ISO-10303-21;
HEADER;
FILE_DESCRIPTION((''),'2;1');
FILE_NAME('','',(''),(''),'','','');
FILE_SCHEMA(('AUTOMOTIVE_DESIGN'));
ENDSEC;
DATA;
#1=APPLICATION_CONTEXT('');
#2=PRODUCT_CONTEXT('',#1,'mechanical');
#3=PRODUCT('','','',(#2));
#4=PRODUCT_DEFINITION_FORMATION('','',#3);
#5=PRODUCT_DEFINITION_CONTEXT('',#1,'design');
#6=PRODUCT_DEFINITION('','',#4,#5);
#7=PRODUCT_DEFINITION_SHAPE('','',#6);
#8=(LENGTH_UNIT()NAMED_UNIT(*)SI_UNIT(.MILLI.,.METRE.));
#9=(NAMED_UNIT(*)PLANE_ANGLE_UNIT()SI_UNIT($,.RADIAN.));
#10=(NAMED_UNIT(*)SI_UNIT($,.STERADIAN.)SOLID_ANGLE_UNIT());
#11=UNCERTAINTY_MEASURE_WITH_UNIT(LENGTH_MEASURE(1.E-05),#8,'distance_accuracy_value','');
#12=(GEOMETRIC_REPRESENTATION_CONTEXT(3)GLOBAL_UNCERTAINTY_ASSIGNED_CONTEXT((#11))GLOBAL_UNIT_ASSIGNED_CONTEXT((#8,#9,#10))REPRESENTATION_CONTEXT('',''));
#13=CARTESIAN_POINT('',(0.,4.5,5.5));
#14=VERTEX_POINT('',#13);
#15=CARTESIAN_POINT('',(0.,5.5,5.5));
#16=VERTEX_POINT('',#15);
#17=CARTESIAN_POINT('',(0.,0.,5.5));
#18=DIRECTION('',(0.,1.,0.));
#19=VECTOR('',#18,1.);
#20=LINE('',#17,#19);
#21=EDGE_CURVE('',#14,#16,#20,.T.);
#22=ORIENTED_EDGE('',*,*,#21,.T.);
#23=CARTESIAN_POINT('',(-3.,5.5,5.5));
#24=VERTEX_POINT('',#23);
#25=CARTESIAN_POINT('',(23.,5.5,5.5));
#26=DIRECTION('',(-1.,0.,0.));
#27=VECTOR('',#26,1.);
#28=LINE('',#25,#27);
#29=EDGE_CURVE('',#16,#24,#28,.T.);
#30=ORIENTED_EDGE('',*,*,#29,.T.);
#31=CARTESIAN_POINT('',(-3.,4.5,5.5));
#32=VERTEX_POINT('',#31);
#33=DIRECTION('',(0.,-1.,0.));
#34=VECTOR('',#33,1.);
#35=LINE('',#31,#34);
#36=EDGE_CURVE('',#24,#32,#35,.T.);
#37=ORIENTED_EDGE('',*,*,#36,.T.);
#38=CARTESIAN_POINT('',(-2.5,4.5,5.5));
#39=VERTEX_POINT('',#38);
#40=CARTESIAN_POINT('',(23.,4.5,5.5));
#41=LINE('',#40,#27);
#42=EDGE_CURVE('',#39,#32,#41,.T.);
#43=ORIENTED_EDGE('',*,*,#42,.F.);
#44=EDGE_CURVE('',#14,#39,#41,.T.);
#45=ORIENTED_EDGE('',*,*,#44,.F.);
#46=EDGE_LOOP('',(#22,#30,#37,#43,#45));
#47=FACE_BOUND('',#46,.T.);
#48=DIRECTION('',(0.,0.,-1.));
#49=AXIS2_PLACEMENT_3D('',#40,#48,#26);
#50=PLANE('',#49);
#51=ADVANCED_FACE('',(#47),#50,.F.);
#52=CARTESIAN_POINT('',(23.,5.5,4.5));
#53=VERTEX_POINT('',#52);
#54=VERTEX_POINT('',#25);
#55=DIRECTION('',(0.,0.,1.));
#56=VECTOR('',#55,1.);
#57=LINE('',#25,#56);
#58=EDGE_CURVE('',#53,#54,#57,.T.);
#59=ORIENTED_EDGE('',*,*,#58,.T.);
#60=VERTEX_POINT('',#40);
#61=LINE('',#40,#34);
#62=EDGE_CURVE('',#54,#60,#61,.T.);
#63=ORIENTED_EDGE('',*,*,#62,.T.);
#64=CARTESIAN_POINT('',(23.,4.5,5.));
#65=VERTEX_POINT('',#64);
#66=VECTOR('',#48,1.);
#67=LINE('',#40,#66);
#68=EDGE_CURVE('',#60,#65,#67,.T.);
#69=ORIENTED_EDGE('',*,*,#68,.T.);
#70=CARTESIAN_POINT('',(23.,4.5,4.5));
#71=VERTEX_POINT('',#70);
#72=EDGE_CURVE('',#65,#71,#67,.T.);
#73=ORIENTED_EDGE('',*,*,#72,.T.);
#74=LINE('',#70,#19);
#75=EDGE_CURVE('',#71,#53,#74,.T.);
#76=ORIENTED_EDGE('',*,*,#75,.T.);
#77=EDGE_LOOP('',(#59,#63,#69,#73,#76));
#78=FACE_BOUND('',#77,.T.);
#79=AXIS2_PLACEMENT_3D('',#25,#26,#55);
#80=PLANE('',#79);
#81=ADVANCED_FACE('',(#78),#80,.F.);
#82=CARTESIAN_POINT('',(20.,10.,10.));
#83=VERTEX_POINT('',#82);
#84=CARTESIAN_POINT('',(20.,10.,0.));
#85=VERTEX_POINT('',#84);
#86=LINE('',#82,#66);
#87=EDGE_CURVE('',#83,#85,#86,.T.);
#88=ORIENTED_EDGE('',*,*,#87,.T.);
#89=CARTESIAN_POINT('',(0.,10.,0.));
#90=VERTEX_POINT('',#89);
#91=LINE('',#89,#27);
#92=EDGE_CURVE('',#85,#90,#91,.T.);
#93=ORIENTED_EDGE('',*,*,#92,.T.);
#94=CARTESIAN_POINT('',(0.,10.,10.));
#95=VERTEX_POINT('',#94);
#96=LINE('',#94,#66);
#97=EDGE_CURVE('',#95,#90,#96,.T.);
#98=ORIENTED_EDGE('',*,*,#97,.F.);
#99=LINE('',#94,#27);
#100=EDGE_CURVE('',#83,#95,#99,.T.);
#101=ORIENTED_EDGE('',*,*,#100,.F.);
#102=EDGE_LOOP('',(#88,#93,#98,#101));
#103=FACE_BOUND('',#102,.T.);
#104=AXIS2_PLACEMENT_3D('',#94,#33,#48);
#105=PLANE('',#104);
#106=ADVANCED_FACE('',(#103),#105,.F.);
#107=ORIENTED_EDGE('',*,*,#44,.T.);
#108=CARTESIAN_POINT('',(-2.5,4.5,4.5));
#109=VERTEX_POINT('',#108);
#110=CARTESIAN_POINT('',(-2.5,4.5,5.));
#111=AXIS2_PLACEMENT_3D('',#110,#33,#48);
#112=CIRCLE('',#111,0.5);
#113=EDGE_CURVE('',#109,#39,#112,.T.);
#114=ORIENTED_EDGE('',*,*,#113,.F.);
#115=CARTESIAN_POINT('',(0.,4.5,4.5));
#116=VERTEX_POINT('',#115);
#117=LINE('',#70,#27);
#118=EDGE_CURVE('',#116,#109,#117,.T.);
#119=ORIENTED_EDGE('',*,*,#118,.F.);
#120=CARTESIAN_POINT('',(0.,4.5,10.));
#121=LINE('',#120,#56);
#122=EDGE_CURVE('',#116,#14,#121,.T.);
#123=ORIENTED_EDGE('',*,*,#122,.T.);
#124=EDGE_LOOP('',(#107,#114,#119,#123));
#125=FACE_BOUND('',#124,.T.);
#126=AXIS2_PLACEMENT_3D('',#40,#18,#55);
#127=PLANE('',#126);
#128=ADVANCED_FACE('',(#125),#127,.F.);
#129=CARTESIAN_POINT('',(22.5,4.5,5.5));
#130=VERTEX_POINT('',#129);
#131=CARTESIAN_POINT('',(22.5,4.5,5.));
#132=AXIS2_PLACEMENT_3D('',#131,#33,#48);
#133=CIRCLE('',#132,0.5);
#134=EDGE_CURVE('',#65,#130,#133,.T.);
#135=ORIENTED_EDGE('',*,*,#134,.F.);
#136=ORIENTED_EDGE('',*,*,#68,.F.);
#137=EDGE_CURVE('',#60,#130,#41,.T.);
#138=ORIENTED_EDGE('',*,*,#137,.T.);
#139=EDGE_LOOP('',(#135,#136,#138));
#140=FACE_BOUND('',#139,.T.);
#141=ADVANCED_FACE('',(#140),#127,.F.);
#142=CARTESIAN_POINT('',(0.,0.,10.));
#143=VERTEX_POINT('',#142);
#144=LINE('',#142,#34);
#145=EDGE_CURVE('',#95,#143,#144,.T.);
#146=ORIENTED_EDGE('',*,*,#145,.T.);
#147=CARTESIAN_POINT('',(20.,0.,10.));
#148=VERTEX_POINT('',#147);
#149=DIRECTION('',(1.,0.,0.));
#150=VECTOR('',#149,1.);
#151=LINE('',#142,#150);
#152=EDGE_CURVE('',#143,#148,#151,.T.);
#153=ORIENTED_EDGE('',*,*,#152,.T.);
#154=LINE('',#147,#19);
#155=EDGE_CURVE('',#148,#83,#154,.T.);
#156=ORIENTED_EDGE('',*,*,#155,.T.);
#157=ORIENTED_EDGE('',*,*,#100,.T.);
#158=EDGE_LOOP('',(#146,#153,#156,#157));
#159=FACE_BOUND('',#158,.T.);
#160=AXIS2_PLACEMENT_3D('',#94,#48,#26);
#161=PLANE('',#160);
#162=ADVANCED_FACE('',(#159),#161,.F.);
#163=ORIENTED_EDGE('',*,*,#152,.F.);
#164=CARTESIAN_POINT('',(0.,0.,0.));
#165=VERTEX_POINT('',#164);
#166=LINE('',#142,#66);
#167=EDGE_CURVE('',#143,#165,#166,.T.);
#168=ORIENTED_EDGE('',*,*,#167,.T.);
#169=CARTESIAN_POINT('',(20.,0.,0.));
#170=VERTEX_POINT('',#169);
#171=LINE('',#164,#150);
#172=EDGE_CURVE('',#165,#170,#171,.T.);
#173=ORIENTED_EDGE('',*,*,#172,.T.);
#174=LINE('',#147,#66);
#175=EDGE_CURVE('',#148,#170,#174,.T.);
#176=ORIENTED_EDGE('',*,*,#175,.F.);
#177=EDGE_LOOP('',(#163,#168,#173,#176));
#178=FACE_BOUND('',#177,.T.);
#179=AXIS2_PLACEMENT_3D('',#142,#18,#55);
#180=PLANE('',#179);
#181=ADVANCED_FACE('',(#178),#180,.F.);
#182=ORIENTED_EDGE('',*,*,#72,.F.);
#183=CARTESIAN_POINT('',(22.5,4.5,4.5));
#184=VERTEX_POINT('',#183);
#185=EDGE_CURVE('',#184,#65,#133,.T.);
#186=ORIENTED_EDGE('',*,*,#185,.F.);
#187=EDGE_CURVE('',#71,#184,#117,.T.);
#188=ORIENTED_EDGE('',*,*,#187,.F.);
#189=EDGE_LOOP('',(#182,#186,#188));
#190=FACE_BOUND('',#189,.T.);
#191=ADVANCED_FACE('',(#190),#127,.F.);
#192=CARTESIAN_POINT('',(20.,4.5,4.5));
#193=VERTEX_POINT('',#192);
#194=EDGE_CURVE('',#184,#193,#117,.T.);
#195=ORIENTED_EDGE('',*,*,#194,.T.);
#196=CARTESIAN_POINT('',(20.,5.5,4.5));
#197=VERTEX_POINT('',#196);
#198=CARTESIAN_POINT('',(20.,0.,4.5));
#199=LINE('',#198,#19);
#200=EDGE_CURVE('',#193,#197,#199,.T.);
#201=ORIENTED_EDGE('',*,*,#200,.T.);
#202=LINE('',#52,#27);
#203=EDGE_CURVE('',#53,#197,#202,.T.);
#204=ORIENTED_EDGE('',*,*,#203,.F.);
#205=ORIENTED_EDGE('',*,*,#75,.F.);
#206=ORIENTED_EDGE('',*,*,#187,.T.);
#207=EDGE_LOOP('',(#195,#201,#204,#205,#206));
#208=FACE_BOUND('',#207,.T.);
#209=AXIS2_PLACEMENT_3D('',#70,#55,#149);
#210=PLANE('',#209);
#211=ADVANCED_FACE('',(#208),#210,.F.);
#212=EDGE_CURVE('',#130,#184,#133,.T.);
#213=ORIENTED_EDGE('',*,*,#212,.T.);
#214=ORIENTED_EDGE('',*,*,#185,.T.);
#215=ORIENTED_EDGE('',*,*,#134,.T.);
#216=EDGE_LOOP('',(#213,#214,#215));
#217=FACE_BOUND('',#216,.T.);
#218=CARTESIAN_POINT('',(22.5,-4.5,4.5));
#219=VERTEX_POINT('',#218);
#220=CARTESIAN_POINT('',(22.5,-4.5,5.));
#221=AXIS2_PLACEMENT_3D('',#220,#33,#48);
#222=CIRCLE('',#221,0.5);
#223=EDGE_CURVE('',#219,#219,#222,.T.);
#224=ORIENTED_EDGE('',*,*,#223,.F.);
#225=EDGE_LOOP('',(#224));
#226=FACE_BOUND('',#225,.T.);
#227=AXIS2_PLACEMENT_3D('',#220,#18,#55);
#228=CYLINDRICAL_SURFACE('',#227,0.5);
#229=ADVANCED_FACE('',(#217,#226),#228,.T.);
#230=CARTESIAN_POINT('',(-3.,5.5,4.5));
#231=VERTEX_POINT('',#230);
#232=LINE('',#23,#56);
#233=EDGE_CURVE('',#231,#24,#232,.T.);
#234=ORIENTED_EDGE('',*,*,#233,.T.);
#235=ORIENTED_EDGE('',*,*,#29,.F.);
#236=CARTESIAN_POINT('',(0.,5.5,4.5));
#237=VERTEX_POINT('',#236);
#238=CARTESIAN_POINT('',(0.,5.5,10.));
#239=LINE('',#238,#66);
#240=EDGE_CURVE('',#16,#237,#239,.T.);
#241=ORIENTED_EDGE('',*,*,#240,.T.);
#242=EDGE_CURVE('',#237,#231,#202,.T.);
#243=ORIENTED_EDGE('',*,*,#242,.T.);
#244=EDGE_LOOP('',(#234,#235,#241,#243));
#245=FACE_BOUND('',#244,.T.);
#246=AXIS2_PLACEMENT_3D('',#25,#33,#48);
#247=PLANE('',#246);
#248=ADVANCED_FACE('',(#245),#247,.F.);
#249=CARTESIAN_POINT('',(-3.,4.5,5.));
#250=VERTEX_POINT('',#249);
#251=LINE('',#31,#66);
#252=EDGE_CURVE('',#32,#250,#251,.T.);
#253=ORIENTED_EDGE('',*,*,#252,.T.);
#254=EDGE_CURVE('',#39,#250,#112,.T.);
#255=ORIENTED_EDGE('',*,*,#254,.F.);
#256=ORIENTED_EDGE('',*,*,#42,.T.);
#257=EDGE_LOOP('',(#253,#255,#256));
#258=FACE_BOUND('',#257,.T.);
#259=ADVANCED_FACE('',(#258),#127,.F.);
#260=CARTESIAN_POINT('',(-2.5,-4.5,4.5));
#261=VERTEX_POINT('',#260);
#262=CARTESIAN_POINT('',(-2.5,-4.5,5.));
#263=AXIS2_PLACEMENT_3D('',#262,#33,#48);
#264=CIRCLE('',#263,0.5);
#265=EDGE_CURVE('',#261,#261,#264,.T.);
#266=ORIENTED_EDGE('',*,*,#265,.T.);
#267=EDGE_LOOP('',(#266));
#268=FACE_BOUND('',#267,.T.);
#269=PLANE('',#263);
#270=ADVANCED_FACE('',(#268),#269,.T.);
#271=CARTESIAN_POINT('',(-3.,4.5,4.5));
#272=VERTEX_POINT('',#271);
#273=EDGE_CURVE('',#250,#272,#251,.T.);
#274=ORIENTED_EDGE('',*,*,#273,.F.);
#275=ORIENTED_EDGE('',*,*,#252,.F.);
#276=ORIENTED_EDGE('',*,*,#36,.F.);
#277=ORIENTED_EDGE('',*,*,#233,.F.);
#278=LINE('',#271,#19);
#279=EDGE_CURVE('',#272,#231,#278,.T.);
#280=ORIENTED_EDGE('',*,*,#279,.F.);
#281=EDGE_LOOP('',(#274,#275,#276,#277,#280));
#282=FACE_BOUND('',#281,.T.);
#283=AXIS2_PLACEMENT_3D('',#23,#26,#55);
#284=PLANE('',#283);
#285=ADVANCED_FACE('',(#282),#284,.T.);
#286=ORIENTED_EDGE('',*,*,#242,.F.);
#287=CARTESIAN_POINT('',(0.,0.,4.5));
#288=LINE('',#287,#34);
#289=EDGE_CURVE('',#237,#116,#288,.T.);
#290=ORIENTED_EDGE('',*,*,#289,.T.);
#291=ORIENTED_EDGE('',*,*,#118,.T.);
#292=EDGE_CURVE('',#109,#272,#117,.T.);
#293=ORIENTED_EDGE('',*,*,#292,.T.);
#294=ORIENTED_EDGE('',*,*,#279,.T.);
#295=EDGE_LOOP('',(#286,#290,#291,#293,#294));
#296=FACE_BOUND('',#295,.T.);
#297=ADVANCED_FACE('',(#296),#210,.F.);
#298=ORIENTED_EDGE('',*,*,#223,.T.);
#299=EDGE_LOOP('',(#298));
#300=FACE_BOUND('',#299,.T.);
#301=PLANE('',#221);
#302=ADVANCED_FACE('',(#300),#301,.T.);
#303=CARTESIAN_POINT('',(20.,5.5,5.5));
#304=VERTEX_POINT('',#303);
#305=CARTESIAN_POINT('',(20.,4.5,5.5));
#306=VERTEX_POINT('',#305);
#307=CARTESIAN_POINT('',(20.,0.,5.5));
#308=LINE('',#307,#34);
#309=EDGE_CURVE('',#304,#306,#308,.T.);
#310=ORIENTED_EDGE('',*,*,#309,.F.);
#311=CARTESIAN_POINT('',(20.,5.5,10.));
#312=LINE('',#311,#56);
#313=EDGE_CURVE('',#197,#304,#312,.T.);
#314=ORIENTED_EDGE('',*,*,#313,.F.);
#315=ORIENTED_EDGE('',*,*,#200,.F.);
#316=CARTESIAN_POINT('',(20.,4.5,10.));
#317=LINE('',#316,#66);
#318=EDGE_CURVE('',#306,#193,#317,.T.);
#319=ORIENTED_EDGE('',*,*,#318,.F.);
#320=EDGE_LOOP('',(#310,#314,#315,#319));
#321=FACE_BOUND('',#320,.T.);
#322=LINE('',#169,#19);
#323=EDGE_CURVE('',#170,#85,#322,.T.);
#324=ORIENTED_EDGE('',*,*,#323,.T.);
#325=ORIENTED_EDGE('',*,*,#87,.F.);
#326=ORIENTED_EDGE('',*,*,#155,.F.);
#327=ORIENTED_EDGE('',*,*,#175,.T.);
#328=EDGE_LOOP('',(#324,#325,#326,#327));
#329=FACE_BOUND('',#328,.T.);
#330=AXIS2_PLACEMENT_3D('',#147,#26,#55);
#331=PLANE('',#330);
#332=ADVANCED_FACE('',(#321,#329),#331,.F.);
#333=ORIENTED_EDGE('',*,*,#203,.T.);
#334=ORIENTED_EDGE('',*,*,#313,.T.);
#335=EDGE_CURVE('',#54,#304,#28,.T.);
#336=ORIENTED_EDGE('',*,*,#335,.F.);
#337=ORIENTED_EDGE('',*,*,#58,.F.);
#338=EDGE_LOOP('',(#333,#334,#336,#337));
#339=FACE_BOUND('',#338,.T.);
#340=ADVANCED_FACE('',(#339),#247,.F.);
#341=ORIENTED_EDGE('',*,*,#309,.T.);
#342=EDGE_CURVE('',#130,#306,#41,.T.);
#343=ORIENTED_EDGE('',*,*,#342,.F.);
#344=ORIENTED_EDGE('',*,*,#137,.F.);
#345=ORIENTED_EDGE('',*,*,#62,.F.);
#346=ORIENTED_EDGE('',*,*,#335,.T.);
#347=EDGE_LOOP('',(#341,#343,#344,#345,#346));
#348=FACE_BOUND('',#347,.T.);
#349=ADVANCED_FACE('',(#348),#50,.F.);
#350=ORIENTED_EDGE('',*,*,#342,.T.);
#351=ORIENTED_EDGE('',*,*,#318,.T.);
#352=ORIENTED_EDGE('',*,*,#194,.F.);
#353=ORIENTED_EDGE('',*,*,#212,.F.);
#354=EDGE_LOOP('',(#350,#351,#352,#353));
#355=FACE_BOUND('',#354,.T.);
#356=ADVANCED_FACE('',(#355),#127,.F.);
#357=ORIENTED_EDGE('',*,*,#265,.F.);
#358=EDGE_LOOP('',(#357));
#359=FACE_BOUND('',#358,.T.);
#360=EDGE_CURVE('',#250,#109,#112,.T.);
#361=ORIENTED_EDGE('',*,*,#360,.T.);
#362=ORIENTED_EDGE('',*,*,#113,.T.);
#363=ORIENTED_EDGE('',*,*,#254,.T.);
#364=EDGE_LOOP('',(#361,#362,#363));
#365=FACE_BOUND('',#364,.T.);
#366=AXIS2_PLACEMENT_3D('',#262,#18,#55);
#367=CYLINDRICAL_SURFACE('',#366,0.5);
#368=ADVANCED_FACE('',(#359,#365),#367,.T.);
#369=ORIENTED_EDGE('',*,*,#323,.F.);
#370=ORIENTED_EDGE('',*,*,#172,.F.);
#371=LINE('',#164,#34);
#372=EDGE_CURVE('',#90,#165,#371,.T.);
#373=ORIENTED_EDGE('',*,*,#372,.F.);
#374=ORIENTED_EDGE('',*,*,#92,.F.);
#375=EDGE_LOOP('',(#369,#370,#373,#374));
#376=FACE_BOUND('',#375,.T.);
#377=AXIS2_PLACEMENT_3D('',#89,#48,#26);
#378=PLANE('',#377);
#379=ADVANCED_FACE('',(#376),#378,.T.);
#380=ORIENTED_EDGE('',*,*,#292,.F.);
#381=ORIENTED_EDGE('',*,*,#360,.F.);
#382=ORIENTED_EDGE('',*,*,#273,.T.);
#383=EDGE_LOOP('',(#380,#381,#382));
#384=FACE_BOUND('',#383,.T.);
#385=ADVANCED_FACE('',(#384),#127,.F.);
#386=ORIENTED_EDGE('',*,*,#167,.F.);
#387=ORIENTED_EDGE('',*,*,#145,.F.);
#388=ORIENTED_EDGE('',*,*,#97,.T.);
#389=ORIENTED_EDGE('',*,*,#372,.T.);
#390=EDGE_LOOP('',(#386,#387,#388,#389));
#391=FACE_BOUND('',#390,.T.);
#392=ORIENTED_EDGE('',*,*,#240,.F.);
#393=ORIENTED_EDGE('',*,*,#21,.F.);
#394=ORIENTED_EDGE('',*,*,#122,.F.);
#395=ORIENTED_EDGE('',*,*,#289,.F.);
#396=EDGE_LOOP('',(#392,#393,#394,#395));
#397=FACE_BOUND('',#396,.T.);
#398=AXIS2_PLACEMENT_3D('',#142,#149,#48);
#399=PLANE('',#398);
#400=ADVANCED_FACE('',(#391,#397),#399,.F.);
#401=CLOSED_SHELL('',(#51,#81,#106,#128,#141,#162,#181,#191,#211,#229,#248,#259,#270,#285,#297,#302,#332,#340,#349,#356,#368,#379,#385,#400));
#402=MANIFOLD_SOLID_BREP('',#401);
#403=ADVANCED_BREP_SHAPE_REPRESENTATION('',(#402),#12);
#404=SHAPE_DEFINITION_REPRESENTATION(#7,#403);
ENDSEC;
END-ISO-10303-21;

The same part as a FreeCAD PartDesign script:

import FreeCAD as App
import Part
import Sketcher
from FreeCAD import Vector

doc = App.newDocument("Part")
body = doc.addObject("PartDesign::Body", "Body")

sketch1 = body.newObject("Sketcher::SketchObject", "Sketch")
sketch1.AttachmentSupport = (doc.getObject("XY_Plane"), [""])
sketch1.MapMode = "FlatFace"
sketch1.addGeometry([
    Part.LineSegment(Vector(0, 10, 0), Vector(0, 0, 0)),
    Part.LineSegment(Vector(0, 0, 0), Vector(20, 0, 0)),
    Part.LineSegment(Vector(20, 0, 0), Vector(20, 10, 0)),
    Part.LineSegment(Vector(20, 10, 0), Vector(0, 10, 0)),
], False)
sketch1.addConstraint([
    Sketcher.Constraint("Coincident", 0, 2, 1, 1),
    Sketcher.Constraint("Coincident", 1, 2, 2, 1),
    Sketcher.Constraint("Coincident", 2, 2, 3, 1),
    Sketcher.Constraint("Coincident", 3, 2, 0, 1),
    Sketcher.Constraint("Vertical", 0),
    Sketcher.Constraint("Horizontal", 1),
    Sketcher.Constraint("Vertical", 2),
    Sketcher.Constraint("Horizontal", 3),
    Sketcher.Constraint("Coincident", 0, 2, -1, 1),
    Sketcher.Constraint("DistanceX", 1, 1, 1, 2, 20.0),
    Sketcher.Constraint("DistanceY", 0, 2, 0, 1, 10.0),
])
pad1 = body.newObject("PartDesign::Pad", "Pad")
pad1.Profile = sketch1
pad1.Length = 10

sketch2 = body.newObject("Sketcher::SketchObject", "Sketch001")
sketch2.AttachmentSupport = (doc.getObject("YZ_Plane"), [""])
sketch2.MapMode = "FlatFace"
sketch2.AttachmentOffset = App.Placement(Vector(0, 0, 20), App.Rotation())
sketch2.addGeometry([
    Part.LineSegment(Vector(5.5, 5.5, 0), Vector(4.5, 5.5, 0)),
    Part.LineSegment(Vector(4.5, 5.5, 0), Vector(4.5, 4.5, 0)),
    Part.LineSegment(Vector(4.5, 4.5, 0), Vector(5.5, 4.5, 0)),
    Part.LineSegment(Vector(5.5, 4.5, 0), Vector(5.5, 5.5, 0)),
], False)
sketch2.addConstraint([
    Sketcher.Constraint("Coincident", 0, 2, 1, 1),
    Sketcher.Constraint("Coincident", 1, 2, 2, 1),
    Sketcher.Constraint("Coincident", 2, 2, 3, 1),
    Sketcher.Constraint("Coincident", 3, 2, 0, 1),
    Sketcher.Constraint("Horizontal", 0),
    Sketcher.Constraint("Vertical", 1),
    Sketcher.Constraint("Horizontal", 2),
    Sketcher.Constraint("Vertical", 3),
    Sketcher.Constraint("Equal", 2, 1),
    Sketcher.Constraint("DistanceX", 0, 2, 0, 1, 1.0),
    Sketcher.Constraint("DistanceX", -1, 1, 0, 2, 4.5),
    Sketcher.Constraint("DistanceY", -1, 1, 0, 2, 5.5),
])
pad2 = body.newObject("PartDesign::Pad", "Pad001")
pad2.Profile = sketch2
pad2.Type = "TwoLengths"
pad2.Length = 3
pad2.Length2 = 23

sketch3 = body.newObject("Sketcher::SketchObject", "Sketch002")
sketch3.AttachmentSupport = (doc.getObject("XZ_Plane"), [""])
sketch3.MapMode = "FlatFace"
sketch3.AttachmentOffset = App.Placement(Vector(0, 0, -4.5), App.Rotation())
sketch3.addGeometry([
    Part.Circle(Vector(-2.5, 5, 0), Vector(0, 0, 1), 0.5),
    Part.Circle(Vector(22.5, 5, 0), Vector(0, 0, 1), 0.5),
], False)
sketch3.addConstraint([
    Sketcher.Constraint("Equal", 0, 1),
    Sketcher.Constraint("Horizontal", 0, 3, 1, 3),
    Sketcher.Constraint("Diameter", 0, 1.0),
    Sketcher.Constraint("DistanceY", -1, 1, 0, 3, 5.0),
    Sketcher.Constraint("DistanceX", 0, 3, 1, 3, 25.0),
    Sketcher.Constraint("DistanceX", 0, 3, -1, 1, 2.5),
])
pad3 = body.newObject("PartDesign::Pad", "Pad002")
pad3.Profile = sketch3
pad3.Length = 9

doc.recompute()
